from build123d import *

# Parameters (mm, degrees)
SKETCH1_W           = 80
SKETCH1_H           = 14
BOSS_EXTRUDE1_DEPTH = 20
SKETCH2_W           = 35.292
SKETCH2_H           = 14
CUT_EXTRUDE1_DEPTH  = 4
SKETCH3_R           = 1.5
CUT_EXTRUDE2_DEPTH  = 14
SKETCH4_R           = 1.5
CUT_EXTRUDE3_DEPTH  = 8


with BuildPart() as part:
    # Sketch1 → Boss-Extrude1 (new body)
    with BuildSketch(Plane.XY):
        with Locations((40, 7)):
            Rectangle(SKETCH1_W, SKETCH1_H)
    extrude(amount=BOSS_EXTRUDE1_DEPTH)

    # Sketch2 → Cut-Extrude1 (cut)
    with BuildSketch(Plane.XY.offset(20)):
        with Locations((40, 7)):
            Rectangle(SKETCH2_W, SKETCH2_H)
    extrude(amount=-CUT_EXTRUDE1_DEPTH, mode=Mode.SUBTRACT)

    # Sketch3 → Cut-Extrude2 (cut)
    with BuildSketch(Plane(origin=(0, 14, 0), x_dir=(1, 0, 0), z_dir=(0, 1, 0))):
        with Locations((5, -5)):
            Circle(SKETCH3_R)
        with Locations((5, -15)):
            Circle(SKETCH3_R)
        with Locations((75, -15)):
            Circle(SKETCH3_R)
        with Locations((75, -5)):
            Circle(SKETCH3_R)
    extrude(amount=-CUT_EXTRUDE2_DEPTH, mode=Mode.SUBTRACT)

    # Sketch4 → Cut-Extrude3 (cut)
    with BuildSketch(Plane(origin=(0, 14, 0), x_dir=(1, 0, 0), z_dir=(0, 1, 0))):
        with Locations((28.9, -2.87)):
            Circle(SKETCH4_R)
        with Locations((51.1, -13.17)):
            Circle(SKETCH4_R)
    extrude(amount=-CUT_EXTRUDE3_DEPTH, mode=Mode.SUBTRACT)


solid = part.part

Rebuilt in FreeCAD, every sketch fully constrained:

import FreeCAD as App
import Part
import Sketcher
Q = App.Units.Quantity


def add_polygon(sketch, points):
    """Adds a closed chain of lines whose ends are joined by coincident constraints."""
    first, n = sketch.GeometryCount, len(points)
    for a, b in zip(points, points[1:] + points[:1]):
        sketch.addGeometry(Part.LineSegment(App.Vector(*a, 0), App.Vector(*b, 0)), False)
    for i in range(n):
        sketch.addConstraint(Sketcher.Constraint("Coincident", first + i, 2, first + (i + 1) % n, 1))

doc = App.newDocument("Part")
body = doc.addObject("PartDesign::Body", "Body")

# Sketch on XY plane
sketch1 = doc.addObject("Sketcher::SketchObject", "Sketch")
body.addObject(sketch1)
sketch1.AttachmentSupport = (doc.XY_Plane, [""])
sketch1.MapMode = "FlatFace"
add_polygon(sketch1, [(0, 14), (0, 0), (80, 0), (80, 14)])  # lines 0-3
sketch1.addConstraint([
    Sketcher.Constraint("Vertical", 0),
    Sketcher.Constraint("Horizontal", 1),
    Sketcher.Constraint("Vertical", 2),
    Sketcher.Constraint("Horizontal", 3),
    Sketcher.Constraint("Coincident", 0, 2, -1, 1),
    Sketcher.Constraint("DistanceX", 1, 1, 1, 2, Q("80 mm")),
    Sketcher.Constraint("DistanceY", 0, 2, 0, 1, Q("14 mm")),
])
pad1 = doc.addObject("PartDesign::Pad", "Pad")
body.addObject(pad1)
pad1.Profile = sketch1
pad1.Length = 20

# Sketch on XY plane
sketch2 = doc.addObject("Sketcher::SketchObject", "Sketch001")
body.addObject(sketch2)
sketch2.AttachmentSupport = (doc.XY_Plane, [""])
sketch2.MapMode = "FlatFace"
sketch2.AttachmentOffset = App.Placement(App.Vector(0, 0, 20), App.Rotation())
add_polygon(sketch2, [(22, 14), (22, 0), (58, 0), (58, 14)])  # lines 0-3
sketch2.addConstraint([
    Sketcher.Constraint("Vertical", 0),
    Sketcher.Constraint("Horizontal", 1),
    Sketcher.Constraint("Vertical", 2),
    Sketcher.Constraint("Horizontal", 3),
    Sketcher.Constraint("PointOnObject", 0, 2, -1),
    Sketcher.Constraint("DistanceY", 0, 2, 0, 1, Q("14 mm")),
    Sketcher.Constraint("DistanceX", 1, 1, 1, 2, Q("35.292 mm")),
    Sketcher.Constraint("DistanceX", -1, 1, 0, 2, Q("22.354 mm")),
])
pocket1 = doc.addObject("PartDesign::Pocket", "Pocket")
body.addObject(pocket1)
pocket1.Profile = sketch2
pocket1.Length = 4

# Sketch on XZ plane
sketch3 = doc.addObject("Sketcher::SketchObject", "Sketch002")
body.addObject(sketch3)
sketch3.AttachmentSupport = (doc.XZ_Plane, [""])
sketch3.MapMode = "FlatFace"
sketch3.AttachmentOffset = App.Placement(App.Vector(0, 0, -14), App.Rotation())
sketch3.addGeometry([
    Part.Circle(App.Vector(5, 5, 0), App.Vector(0, 0, 1), 1.5),
    Part.Circle(App.Vector(5, 15, 0), App.Vector(0, 0, 1), 1.5),
    Part.Circle(App.Vector(75, 15, 0), App.Vector(0, 0, 1), 1.5),
    Part.Circle(App.Vector(75, 5, 0), App.Vector(0, 0, 1), 1.5),
], False)
sketch3.addConstraint([
    Sketcher.Constraint("Equal", 0, 1),
    Sketcher.Constraint("Equal", 1, 2),
    Sketcher.Constraint("Equal", 2, 3),
    Sketcher.Constraint("Horizontal", 1, 3, 2, 3),
    Sketcher.Constraint("Horizontal", 0, 3, 3, 3),
    Sketcher.Constraint("Vertical", 0, 3, 1, 3),
    Sketcher.Constraint("Vertical", 2, 3, 3, 3),
    Sketcher.Constraint("Diameter", 0, Q("3 mm")),
    Sketcher.Constraint("DistanceX", -1, 1, 0, 3, Q("5 mm")),
    Sketcher.Constraint("DistanceY", -1, 1, 0, 3, Q("5 mm")),
    Sketcher.Constraint("DistanceY", -1, 1, 1, 3, Q("15 mm")),
    Sketcher.Constraint("DistanceX", -1, 1, 2, 3, Q("75 mm")),
])
pocket2 = doc.addObject("PartDesign::Pocket", "Pocket001")
body.addObject(pocket2)
pocket2.Profile = sketch3
pocket2.Length = 14
pocket2.Reversed = True

# Sketch on XZ plane
sketch4 = doc.addObject("Sketcher::SketchObject", "Sketch003")
body.addObject(sketch4)
sketch4.AttachmentSupport = (doc.XZ_Plane, [""])
sketch4.MapMode = "FlatFace"
sketch4.AttachmentOffset = App.Placement(App.Vector(0, 0, -14), App.Rotation())
sketch4.addGeometry([
    Part.Circle(App.Vector(28.9, 2.9, 0), App.Vector(0, 0, 1), 1.5),
    Part.Circle(App.Vector(51.1, 13.2, 0), App.Vector(0, 0, 1), 1.5),
], False)
sketch4.addConstraint([
    Sketcher.Constraint("Equal", 0, 1),
    Sketcher.Constraint("Diameter", 0, Q("3 mm")),
    Sketcher.Constraint("DistanceX", -1, 1, 0, 3, Q("28.9 mm")),
    Sketcher.Constraint("DistanceX", -1, 1, 1, 3, Q("51.1 mm")),
    Sketcher.Constraint("DistanceY", 0, 3, 1, 3, Q("10.3 mm")),
    Sketcher.Constraint("DistanceY", -1, 1, 0, 3, Q("2.87 mm")),
])
pocket3 = doc.addObject("PartDesign::Pocket", "Pocket002")
body.addObject(pocket3)
pocket3.Profile = sketch4
pocket3.Length = 8
pocket3.Reversed = True

doc.recompute()
